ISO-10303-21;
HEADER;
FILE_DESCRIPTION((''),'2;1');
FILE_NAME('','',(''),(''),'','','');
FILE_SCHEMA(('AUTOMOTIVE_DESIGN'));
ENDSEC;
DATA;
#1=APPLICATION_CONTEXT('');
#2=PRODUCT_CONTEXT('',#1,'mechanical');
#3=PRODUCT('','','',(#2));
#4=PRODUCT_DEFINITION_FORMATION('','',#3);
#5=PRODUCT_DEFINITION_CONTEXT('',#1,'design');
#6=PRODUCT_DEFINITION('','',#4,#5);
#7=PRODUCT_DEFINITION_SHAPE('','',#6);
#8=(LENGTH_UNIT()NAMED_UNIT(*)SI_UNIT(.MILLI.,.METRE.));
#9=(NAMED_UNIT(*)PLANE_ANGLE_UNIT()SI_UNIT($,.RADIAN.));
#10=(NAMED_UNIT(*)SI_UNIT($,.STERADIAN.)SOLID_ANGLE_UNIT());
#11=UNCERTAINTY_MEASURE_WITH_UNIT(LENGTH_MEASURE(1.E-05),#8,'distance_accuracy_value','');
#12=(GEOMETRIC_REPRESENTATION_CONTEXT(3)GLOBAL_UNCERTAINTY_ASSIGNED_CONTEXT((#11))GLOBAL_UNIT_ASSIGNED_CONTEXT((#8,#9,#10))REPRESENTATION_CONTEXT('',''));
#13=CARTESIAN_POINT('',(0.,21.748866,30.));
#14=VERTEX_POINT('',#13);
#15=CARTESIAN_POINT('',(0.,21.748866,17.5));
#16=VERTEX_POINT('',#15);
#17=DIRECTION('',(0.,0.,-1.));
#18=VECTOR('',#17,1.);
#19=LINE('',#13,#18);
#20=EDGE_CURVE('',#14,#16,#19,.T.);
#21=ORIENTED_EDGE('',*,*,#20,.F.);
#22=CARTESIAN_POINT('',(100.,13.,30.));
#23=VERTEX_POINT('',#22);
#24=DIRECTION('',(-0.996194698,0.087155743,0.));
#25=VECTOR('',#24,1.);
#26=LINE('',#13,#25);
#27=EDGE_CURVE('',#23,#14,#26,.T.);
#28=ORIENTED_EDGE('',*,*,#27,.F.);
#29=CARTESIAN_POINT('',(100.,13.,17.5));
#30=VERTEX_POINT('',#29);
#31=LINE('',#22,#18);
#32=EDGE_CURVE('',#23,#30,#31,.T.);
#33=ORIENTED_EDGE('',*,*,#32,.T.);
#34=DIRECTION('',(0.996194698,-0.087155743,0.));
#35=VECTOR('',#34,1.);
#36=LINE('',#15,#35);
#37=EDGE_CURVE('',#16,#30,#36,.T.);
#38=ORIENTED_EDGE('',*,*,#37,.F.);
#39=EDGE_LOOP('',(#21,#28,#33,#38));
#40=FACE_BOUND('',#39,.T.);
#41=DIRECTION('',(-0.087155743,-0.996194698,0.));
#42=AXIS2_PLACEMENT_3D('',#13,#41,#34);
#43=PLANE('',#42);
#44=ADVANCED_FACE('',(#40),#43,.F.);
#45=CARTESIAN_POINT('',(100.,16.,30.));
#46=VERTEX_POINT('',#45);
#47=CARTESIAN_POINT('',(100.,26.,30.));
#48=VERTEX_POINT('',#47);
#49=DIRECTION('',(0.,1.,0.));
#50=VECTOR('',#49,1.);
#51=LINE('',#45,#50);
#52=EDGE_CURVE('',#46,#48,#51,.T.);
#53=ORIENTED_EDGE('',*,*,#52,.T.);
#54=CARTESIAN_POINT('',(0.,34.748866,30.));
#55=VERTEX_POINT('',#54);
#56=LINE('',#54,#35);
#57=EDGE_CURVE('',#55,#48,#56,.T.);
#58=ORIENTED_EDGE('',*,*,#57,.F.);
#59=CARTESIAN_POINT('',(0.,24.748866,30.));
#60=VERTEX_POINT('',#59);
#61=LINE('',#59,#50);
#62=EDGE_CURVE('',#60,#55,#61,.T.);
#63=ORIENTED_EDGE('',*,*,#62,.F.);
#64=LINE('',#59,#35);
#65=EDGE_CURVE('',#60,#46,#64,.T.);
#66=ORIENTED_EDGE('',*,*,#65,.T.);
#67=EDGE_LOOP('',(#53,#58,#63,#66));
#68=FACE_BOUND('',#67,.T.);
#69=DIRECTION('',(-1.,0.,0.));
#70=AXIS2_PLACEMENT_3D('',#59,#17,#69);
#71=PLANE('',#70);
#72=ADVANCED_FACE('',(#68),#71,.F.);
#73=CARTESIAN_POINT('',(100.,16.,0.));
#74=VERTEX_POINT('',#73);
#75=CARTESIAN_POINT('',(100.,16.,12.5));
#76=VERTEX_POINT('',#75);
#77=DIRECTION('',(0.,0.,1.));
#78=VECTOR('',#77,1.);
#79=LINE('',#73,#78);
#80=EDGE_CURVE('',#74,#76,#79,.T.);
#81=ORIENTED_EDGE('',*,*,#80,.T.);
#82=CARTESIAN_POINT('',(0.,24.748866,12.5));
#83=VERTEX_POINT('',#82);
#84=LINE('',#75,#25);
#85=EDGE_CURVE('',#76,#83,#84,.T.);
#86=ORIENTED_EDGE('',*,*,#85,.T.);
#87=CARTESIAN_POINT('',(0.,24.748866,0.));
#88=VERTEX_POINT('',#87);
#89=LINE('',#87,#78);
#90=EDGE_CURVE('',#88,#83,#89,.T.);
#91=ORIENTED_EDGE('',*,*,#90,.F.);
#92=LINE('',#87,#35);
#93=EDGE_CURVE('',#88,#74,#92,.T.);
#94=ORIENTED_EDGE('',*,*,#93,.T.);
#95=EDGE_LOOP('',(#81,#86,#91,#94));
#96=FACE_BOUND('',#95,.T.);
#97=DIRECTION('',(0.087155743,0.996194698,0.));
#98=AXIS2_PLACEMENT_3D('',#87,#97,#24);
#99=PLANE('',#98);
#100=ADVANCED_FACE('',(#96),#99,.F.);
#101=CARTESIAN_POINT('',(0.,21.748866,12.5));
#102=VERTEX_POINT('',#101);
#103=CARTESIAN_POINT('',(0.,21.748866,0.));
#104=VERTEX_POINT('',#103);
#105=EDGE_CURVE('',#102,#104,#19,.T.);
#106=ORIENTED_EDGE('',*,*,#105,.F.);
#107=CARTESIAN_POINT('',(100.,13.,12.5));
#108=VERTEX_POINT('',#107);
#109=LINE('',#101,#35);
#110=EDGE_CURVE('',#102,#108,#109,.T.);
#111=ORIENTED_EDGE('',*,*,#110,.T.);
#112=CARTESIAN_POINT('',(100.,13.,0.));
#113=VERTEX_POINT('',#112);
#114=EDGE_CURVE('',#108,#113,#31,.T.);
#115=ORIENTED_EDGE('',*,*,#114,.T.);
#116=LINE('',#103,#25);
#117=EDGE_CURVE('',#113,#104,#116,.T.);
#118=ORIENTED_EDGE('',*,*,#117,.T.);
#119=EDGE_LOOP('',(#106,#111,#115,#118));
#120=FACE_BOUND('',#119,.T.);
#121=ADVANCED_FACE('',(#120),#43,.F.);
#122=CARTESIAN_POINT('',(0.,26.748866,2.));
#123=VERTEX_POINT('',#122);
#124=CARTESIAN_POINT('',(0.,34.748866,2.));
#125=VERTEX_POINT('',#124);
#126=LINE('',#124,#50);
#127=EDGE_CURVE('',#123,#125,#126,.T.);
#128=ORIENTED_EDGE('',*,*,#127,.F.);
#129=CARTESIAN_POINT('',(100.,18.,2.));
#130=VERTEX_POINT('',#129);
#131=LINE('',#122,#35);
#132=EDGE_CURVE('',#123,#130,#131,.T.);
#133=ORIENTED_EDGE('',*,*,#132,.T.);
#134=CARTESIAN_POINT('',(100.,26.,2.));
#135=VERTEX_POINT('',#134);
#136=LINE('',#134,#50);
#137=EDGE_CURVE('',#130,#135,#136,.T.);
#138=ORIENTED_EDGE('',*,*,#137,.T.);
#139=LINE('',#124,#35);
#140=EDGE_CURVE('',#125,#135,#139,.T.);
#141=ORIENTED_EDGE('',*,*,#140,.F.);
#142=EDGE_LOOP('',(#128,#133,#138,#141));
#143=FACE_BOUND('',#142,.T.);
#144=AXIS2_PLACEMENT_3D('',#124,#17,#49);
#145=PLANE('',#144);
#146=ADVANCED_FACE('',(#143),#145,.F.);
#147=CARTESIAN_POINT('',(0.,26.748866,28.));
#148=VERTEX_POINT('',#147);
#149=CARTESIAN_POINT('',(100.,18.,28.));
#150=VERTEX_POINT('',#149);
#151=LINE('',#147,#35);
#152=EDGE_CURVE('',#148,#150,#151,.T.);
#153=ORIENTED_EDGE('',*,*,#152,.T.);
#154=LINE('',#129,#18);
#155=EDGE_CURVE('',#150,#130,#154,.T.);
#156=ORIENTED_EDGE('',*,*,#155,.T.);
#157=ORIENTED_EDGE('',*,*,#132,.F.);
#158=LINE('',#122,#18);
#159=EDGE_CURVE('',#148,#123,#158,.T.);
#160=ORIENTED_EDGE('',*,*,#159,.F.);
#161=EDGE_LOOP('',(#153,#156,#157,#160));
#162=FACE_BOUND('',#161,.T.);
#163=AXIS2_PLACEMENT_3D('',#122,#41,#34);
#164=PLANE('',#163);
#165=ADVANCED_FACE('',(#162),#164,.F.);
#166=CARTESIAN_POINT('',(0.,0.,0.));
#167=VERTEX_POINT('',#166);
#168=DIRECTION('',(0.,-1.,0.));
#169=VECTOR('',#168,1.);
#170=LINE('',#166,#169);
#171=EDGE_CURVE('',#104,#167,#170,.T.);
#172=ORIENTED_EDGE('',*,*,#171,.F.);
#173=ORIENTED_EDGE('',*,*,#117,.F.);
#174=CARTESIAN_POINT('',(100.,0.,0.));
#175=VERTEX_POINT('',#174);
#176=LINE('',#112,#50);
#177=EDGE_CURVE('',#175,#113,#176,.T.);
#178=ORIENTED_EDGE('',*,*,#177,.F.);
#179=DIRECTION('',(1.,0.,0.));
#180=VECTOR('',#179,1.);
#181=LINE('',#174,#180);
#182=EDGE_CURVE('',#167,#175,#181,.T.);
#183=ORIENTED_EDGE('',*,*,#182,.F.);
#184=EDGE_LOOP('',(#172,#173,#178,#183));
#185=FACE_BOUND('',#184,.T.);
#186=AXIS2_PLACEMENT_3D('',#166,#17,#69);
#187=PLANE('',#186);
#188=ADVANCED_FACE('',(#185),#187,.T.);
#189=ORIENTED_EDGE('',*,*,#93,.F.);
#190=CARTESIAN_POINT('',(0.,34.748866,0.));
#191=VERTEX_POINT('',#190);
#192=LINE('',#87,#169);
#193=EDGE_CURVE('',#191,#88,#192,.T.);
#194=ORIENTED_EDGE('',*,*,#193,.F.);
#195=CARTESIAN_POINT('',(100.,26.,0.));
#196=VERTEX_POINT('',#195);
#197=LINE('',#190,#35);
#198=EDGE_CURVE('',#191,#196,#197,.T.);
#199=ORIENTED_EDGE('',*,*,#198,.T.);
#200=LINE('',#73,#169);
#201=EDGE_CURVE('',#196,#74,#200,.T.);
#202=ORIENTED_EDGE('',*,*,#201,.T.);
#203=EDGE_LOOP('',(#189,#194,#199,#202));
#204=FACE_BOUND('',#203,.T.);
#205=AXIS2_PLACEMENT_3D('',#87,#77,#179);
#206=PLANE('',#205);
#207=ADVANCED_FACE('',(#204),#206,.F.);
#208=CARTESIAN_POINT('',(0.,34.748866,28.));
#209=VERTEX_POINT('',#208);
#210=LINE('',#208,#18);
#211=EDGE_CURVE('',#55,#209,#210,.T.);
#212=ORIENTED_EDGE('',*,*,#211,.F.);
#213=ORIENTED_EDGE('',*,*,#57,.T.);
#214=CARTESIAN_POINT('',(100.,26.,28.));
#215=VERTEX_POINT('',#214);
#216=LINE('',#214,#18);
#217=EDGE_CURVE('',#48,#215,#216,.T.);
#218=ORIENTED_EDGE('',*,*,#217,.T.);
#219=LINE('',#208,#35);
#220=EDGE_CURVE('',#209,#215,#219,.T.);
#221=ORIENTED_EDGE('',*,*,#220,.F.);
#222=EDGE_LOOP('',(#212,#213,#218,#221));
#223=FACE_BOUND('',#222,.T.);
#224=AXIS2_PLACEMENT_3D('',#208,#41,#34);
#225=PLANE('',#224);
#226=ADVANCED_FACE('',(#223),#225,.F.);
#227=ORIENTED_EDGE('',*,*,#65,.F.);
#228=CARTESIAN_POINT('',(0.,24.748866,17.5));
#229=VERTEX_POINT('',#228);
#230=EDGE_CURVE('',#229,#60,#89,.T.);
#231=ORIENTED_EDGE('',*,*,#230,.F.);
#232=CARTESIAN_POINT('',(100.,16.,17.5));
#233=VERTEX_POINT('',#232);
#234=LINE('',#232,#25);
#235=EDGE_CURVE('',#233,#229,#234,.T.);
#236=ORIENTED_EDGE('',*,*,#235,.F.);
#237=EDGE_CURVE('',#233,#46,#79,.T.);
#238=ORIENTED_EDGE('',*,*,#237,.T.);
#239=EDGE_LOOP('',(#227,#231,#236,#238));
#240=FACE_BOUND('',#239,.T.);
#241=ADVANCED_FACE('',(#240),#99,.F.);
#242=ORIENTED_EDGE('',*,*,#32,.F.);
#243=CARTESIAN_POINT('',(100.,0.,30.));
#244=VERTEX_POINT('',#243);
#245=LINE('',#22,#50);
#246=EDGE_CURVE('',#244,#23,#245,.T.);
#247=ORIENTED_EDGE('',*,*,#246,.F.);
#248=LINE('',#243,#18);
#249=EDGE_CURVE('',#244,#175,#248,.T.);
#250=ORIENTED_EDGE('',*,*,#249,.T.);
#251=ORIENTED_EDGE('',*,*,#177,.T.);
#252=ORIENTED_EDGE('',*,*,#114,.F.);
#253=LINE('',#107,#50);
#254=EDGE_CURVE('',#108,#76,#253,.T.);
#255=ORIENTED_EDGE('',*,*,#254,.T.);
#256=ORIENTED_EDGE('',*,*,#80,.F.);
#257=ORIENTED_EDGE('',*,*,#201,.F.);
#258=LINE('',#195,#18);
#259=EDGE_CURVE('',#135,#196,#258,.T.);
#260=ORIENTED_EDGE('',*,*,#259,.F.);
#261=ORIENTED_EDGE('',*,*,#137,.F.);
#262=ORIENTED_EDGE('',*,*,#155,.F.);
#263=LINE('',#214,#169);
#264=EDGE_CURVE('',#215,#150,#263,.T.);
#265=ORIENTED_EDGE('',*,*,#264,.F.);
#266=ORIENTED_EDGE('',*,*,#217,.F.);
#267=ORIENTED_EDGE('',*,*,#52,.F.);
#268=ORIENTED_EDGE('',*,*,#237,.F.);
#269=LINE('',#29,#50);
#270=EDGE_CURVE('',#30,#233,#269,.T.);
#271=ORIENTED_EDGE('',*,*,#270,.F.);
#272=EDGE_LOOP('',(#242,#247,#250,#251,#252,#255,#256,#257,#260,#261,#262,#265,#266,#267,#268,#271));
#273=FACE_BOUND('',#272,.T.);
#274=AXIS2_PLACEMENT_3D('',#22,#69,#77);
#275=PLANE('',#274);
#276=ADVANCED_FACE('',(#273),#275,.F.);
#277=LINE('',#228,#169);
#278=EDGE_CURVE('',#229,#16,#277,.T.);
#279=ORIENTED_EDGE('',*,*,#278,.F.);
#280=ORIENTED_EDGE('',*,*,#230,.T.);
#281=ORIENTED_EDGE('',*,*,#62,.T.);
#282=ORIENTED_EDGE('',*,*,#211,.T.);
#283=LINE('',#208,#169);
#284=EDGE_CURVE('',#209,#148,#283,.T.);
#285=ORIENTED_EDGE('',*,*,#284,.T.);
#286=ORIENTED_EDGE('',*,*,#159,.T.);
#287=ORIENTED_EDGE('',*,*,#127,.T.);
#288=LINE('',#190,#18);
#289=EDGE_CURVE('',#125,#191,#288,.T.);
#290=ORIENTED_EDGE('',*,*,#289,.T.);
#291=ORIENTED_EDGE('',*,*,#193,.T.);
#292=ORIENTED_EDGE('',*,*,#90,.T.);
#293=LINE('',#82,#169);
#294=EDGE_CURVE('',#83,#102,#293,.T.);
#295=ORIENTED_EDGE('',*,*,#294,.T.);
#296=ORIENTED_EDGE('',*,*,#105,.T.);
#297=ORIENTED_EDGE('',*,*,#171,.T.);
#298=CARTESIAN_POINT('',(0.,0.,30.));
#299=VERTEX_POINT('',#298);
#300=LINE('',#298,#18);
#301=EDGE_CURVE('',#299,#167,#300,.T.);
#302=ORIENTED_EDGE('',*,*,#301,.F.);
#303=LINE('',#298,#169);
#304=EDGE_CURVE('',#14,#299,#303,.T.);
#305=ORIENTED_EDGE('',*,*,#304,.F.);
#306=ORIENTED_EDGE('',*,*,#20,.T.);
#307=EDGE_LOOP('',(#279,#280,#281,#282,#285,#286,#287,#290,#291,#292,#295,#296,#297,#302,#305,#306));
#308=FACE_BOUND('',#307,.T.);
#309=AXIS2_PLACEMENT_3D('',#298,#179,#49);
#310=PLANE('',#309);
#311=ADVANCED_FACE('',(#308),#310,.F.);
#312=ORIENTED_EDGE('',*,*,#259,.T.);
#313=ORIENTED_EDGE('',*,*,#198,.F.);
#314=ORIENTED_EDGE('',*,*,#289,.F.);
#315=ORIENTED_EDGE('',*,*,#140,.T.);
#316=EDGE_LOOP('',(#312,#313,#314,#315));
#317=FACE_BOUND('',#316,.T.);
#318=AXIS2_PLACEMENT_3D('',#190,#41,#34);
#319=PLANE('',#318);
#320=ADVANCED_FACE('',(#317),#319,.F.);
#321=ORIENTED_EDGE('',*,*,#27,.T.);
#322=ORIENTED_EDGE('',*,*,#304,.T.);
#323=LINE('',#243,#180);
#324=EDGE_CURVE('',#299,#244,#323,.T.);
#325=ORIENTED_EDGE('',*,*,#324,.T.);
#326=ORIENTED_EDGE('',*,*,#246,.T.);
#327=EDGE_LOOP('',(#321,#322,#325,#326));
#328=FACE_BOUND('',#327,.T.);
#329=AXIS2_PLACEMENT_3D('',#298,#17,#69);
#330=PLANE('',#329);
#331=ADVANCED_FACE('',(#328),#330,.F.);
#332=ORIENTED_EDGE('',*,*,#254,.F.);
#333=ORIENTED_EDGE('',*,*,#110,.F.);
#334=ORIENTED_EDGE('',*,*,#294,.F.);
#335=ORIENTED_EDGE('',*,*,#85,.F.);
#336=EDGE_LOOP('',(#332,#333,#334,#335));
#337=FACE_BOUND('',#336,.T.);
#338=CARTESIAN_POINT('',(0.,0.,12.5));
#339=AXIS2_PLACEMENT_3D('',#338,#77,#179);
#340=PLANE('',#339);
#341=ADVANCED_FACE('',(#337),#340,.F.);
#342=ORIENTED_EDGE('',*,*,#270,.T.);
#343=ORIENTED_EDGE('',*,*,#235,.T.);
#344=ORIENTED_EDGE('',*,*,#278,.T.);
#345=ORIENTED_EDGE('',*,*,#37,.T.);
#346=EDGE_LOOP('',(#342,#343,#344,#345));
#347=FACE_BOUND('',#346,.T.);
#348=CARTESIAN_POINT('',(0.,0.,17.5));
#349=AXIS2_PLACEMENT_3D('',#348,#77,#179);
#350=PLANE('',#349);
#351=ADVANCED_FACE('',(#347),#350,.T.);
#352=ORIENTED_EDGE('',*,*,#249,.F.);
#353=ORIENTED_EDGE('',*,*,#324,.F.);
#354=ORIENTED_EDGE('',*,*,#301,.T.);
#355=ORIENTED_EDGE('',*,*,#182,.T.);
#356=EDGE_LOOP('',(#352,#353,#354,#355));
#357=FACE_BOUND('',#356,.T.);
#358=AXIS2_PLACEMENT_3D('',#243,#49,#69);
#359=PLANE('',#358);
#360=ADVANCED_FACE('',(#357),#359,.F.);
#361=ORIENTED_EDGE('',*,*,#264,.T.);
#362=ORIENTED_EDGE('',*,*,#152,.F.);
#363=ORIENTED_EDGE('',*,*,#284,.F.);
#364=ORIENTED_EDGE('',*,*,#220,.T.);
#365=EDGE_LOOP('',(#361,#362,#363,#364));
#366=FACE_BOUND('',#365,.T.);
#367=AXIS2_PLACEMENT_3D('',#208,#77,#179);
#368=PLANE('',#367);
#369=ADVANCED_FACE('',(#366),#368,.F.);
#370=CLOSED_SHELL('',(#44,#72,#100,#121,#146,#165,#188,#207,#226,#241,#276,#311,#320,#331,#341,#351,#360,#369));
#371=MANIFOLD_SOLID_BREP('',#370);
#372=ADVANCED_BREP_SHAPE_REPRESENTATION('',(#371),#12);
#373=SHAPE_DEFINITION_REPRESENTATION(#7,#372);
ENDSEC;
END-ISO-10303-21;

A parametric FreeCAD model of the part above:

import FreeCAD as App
import Part
import Sketcher
from FreeCAD import Vector
Q = App.Units.Quantity

doc = App.newDocument("Part")
params = doc.addObject("Spreadsheet::Sheet", "Params")
for row, (alias, value) in enumerate([
    ("sketch1_width", "100 mm"),
    ("sketch1_height", "13 mm"),
    ("pad1_length", "30 mm"),
    ("sketch2_height", "3 mm"),
    ("pad2_length", "5 mm"),
    ("sketch3_width", "8 mm"),
    ("sketch3_width2", "10 mm"),
    ("sketch3_height", "2 mm"),
    ("sketch3_height2", "26 mm"),
], start=1):
    params.set(f"A{row}", alias)
    params.set(f"B{row}", "=" + value)
    params.setAlias(f"B{row}", alias)

body = doc.addObject("PartDesign::Body", "Body")

sketch1 = body.newObject("Sketcher::SketchObject", "Sketch")
sketch1.AttachmentSupport = (doc.getObject("XY_Plane"), [""])
sketch1.MapMode = "FlatFace"
sketch1.addGeometry([
    Part.LineSegment(Vector(0, 21.748866, 0), Vector(0, 0, 0)),
    Part.LineSegment(Vector(0, 0, 0), Vector(100, 0, 0)),
    Part.LineSegment(Vector(100, 0, 0), Vector(100, 13, 0)),
    Part.LineSegment(Vector(100, 13, 0), Vector(0, 21.748866, 0)),
], False)
sketch1.addConstraint([
    Sketcher.Constraint("Coincident", 0, 2, 1, 1),
    Sketcher.Constraint("Coincident", 1, 2, 2, 1),
    Sketcher.Constraint("Coincident", 2, 2, 3, 1),
    Sketcher.Constraint("Coincident", 3, 2, 0, 1),
    Sketcher.Constraint("Vertical", 0),
    Sketcher.Constraint("Horizontal", 1),
    Sketcher.Constraint("Vertical", 2),
    Sketcher.Constraint("Coincident", 0, 2, -1, 1),
    Sketcher.Constraint("DistanceX", 1, 1, 1, 2, 100.0),
    Sketcher.Constraint("DistanceY", 2, 1, 2, 2, 13.0),
    Sketcher.Constraint("Angle", 3, Q("175 deg")),
])
sketch1.setExpression("Constraints[8]", "Params.sketch1_width")
sketch1.setExpression("Constraints[9]", "Params.sketch1_height")
pad1 = body.newObject("PartDesign::Pad", "Pad")
pad1.Profile = sketch1
pad1.setExpression("Length", "Params.pad1_length")

sketch2 = body.newObject("Sketcher::SketchObject", "Sketch001")
sketch2.AttachmentSupport = (doc.getObject("XY_Plane"), [""])
sketch2.MapMode = "FlatFace"
sketch2.AttachmentOffset = App.Placement(Vector(0, 0, 15), App.Rotation())
sketch2.addGeometry([
    Part.LineSegment(Vector(0, 21.748866, 0), Vector(100, 13, 0)),
    Part.LineSegment(Vector(100, 13, 0), Vector(100, 16, 0)),
    Part.LineSegment(Vector(100, 16, 0), Vector(0, 24.748866, 0)),
    Part.LineSegment(Vector(0, 24.748866, 0), Vector(0, 21.748866, 0)),
], False)
sketch2.addConstraint([
    Sketcher.Constraint("Coincident", 0, 2, 1, 1),
    Sketcher.Constraint("Coincident", 1, 2, 2, 1),
    Sketcher.Constraint("Coincident", 2, 2, 3, 1),
    Sketcher.Constraint("Coincident", 3, 2, 0, 1),
    Sketcher.Constraint("Vertical", 1),
    Sketcher.Constraint("Vertical", 3),
    Sketcher.Constraint("PointOnObject", 2, 2, -2),
    Sketcher.Constraint("Parallel", 0, 2),
    Sketcher.Constraint("DistanceY", 1, 1, 1, 2, 3.0),
    Sketcher.Constraint("Angle", 0, Q("-5 deg")),
    Sketcher.Constraint("DistanceX", -1, 1, 0, 2, 100.0),
    Sketcher.Constraint("DistanceY", -1, 1, 0, 2, 13.0),
])
sketch2.setExpression("Constraints[8]", "Params.sketch2_height")
pad2 = body.newObject("PartDesign::Pad", "Pad001")
pad2.Profile = sketch2
pad2.setExpression("Length", "Params.pad2_length")
pad2.Midplane = True

sketch3 = body.newObject("Sketcher::SketchObject", "Sketch002")
sketch3.AttachmentSupport = (doc.getObject("YZ_Plane"), [""])
sketch3.MapMode = "FlatFace"
sketch3.addGeometry([
    Part.LineSegment(Vector(34.748866, 30, 0), Vector(34.748866, 28, 0)),
    Part.LineSegment(Vector(34.748866, 28, 0), Vector(26.748866, 28, 0)),
    Part.LineSegment(Vector(26.748866, 28, 0), Vector(26.748866, 2, 0)),
    Part.LineSegment(Vector(26.748866, 2, 0), Vector(34.748866, 2, 0)),
    Part.LineSegment(Vector(34.748866, 2, 0), Vector(34.748866, 0, 0)),
    Part.LineSegment(Vector(34.748866, 0, 0), Vector(24.748866, 0, 0)),
    Part.LineSegment(Vector(24.748866, 0, 0), Vector(24.748866, 30, 0)),
    Part.LineSegment(Vector(24.748866, 30, 0), Vector(34.748866, 30, 0)),
], False)
sketch3.addConstraint([
    Sketcher.Constraint("Coincident", 0, 2, 1, 1),
    Sketcher.Constraint("Coincident", 1, 2, 2, 1),
    Sketcher.Constraint("Coincident", 2, 2, 3, 1),
    Sketcher.Constraint("Coincident", 3, 2, 4, 1),
    Sketcher.Constraint("Coincident", 4, 2, 5, 1),
    Sketcher.Constraint("Coincident", 5, 2, 6, 1),
    Sketcher.Constraint("Coincident", 6, 2, 7, 1),
    Sketcher.Constraint("Coincident", 7, 2, 0, 1),
    Sketcher.Constraint("Vertical", 0),
    Sketcher.Constraint("Horizontal", 1),
    Sketcher.Constraint("Vertical", 2),
    Sketcher.Constraint("Horizontal", 3),
    Sketcher.Constraint("Vertical", 4),
    Sketcher.Constraint("Horizontal", 5),
    Sketcher.Constraint("Vertical", 6),
    Sketcher.Constraint("Horizontal", 7),
    Sketcher.Constraint("PointOnObject", 4, 2, -1),
    Sketcher.Constraint("Vertical", 0, 2, 3, 2),
    Sketcher.Constraint("Equal", 0, 4),
    Sketcher.Constraint("DistanceX", 1, 2, 1, 1, 8.0),
    Sketcher.Constraint("DistanceX", 5, 2, 5, 1, 10.0),
    Sketcher.Constraint("DistanceY", 0, 2, 0, 1, 2.0),
    Sketcher.Constraint("DistanceY", 2, 2, 2, 1, 26.0),
    Sketcher.Constraint("DistanceX", -1, 1, 0, 2, 34.748866),
])
sketch3.setExpression("Constraints[19]", "Params.sketch3_width")
sketch3.setExpression("Constraints[20]", "Params.sketch3_width2")
sketch3.setExpression("Constraints[21]", "Params.sketch3_height")
sketch3.setExpression("Constraints[22]", "Params.sketch3_height2")

sketch4 = body.newObject("Sketcher::SketchObject", "Sketch003")
sketch4.Placement = App.Placement(Vector(2.148798, 24.560871, 0), App.Rotation(Vector(0.996194698, -0.087155743, 0), Vector(0, 0, 1), Vector(-0.087155743, -0.996194698, 0), "ZXY"))
sketch4.addGeometry(Part.LineSegment(Vector(-2.157006, 15, 0), Vector(98.224978, 15, 0)), False)
sketch4.addConstraint([
    Sketcher.Constraint("Horizontal", 0),
    Sketcher.Constraint("DistanceY", -1, 1, 0, 1, 15.0),
    Sketcher.Constraint("DistanceX", 0, 1, 0, 2, 100.381984),
    Sketcher.Constraint("DistanceX", 0, 1, -1, 1, 2.157006),
])
doc.recompute()

additivepipe = body.newObject("PartDesign::AdditivePipe", "AdditivePipe")
additivepipe.Profile = sketch3
additivepipe.Spine = (sketch4, ["Edge1"])

doc.recompute()
